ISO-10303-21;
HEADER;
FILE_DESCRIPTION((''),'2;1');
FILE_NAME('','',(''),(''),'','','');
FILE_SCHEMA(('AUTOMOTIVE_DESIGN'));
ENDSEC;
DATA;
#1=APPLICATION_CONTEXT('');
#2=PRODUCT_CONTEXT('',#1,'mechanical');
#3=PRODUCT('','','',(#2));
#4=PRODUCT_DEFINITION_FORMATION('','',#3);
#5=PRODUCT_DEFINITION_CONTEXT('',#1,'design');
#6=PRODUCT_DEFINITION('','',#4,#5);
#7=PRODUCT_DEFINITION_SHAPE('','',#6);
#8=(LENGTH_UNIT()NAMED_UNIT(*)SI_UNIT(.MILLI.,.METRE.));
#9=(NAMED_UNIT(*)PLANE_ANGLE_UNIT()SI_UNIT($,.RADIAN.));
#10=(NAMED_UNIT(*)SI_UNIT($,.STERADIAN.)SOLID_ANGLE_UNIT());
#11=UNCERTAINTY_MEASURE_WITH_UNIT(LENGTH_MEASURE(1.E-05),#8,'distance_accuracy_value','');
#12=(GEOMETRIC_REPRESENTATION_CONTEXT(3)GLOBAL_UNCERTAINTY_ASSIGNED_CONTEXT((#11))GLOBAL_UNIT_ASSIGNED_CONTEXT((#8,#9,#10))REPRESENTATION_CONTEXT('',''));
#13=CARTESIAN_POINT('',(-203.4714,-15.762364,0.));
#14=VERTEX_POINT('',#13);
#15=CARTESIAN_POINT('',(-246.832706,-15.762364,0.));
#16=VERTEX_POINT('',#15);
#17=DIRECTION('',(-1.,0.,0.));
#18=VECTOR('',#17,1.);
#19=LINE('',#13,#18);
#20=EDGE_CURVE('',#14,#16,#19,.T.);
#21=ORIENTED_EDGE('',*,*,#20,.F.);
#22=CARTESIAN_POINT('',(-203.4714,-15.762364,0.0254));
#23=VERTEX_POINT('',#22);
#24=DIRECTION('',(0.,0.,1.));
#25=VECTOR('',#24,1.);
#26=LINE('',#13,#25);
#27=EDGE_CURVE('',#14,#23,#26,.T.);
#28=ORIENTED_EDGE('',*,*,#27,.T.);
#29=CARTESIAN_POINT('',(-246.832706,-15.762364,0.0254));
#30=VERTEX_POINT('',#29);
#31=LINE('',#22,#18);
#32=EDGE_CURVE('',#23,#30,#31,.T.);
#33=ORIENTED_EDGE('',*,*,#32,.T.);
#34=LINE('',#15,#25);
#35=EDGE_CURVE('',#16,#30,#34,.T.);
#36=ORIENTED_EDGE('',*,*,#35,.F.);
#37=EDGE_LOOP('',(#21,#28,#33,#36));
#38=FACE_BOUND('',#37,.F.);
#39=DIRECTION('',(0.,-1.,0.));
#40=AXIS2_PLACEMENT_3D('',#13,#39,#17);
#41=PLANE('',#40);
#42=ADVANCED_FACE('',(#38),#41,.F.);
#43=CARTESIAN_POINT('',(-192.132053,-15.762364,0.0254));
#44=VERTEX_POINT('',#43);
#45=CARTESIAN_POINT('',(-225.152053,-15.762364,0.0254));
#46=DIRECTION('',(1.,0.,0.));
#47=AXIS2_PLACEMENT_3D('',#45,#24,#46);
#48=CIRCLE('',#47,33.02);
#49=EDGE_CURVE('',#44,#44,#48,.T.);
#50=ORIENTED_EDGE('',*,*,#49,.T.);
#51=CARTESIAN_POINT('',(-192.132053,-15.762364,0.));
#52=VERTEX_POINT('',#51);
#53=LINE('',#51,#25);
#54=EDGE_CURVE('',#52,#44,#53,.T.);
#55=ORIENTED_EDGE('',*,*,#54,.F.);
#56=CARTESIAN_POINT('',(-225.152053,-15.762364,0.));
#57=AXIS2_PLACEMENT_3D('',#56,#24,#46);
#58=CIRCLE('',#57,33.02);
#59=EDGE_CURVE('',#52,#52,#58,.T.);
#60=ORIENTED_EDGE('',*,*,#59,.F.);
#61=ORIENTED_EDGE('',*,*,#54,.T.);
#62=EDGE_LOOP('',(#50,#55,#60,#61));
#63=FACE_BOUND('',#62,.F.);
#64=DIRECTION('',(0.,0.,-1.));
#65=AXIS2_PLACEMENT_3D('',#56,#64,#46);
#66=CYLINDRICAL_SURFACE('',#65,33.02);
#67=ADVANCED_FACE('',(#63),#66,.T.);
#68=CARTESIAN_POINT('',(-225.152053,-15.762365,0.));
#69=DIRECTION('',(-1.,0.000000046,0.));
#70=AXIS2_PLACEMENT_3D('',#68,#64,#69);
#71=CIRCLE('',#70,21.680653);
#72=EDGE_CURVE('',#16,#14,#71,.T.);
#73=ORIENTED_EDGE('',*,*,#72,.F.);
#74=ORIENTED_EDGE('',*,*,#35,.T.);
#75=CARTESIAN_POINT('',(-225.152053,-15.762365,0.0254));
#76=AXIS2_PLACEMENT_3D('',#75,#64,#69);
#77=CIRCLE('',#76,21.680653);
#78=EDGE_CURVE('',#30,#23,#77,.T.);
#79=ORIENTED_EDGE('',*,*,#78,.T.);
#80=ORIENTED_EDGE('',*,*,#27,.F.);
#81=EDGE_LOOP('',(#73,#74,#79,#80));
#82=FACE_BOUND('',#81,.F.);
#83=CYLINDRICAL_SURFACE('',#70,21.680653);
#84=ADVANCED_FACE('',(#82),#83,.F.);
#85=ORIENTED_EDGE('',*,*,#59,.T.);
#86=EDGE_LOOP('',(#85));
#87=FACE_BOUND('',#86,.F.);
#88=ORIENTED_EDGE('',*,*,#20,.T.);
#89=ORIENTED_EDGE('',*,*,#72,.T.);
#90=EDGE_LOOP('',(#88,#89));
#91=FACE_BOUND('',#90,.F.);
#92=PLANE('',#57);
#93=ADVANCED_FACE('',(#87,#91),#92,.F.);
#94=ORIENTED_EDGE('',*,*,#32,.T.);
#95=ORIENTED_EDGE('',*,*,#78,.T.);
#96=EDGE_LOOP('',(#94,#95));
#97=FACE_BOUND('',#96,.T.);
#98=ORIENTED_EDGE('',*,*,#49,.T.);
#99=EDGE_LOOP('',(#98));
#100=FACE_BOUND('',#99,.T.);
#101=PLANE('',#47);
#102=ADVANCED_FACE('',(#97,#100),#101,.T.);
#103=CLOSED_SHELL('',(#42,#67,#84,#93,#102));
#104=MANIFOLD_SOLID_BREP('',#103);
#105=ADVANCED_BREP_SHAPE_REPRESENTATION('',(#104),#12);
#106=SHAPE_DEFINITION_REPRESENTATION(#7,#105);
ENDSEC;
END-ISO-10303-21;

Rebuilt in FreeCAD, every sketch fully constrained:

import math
import FreeCAD as App
import Part
import Sketcher
from FreeCAD import Vector
Q = App.Units.Quantity

doc = App.newDocument("Part")
body = doc.addObject("PartDesign::Body", "Body")

# Sketch on XY plane
sketch1 = doc.addObject("Sketcher::SketchObject", "Sketch")
body.addObject(sketch1)
sketch1.AttachmentSupport = (doc.XY_Plane, [""])
sketch1.MapMode = "FlatFace"
sketch1.addGeometry([
    Part.Circle(Vector(-225.152053, -15.762364, 0), Vector(0, 0, 1), 33.02),
    Part.ArcOfCircle(Part.Circle(Vector(-225.152053, -15.762365, 0), Vector(0, 0, 1), 21.680653), math.radians(0.000003), math.radians(179.999997)),
    Part.LineSegment(Vector(-203.4714, -15.762364, 0), Vector(-246.832706, -15.762364, 0)),
], False)
sketch1.addConstraint([
    Sketcher.Constraint("Coincident", 1, 1, 2, 1),
    Sketcher.Constraint("Coincident", 2, 2, 1, 2),
    Sketcher.Constraint("Horizontal", 2),
    Sketcher.Constraint("Coincident", 1, 3, 0, 3),
    Sketcher.Constraint("Horizontal", 0, 3, 1, 1),
    Sketcher.Constraint("Diameter", 0, Q("2.6 in")),
    Sketcher.Constraint("Radius", 1, Q("21.680653 mm")),
    Sketcher.Constraint("DistanceX", 1, 1, -1, 1, Q("203.4714 mm")),
    Sketcher.Constraint("DistanceY", 0, 3, -1, 1, Q("15.762364 mm")),
])
pad1 = doc.addObject("PartDesign::Pad", "Pad")
body.addObject(pad1)
pad1.Profile = sketch1
pad1.Length = Q("0.001 in")

doc.recompute()
